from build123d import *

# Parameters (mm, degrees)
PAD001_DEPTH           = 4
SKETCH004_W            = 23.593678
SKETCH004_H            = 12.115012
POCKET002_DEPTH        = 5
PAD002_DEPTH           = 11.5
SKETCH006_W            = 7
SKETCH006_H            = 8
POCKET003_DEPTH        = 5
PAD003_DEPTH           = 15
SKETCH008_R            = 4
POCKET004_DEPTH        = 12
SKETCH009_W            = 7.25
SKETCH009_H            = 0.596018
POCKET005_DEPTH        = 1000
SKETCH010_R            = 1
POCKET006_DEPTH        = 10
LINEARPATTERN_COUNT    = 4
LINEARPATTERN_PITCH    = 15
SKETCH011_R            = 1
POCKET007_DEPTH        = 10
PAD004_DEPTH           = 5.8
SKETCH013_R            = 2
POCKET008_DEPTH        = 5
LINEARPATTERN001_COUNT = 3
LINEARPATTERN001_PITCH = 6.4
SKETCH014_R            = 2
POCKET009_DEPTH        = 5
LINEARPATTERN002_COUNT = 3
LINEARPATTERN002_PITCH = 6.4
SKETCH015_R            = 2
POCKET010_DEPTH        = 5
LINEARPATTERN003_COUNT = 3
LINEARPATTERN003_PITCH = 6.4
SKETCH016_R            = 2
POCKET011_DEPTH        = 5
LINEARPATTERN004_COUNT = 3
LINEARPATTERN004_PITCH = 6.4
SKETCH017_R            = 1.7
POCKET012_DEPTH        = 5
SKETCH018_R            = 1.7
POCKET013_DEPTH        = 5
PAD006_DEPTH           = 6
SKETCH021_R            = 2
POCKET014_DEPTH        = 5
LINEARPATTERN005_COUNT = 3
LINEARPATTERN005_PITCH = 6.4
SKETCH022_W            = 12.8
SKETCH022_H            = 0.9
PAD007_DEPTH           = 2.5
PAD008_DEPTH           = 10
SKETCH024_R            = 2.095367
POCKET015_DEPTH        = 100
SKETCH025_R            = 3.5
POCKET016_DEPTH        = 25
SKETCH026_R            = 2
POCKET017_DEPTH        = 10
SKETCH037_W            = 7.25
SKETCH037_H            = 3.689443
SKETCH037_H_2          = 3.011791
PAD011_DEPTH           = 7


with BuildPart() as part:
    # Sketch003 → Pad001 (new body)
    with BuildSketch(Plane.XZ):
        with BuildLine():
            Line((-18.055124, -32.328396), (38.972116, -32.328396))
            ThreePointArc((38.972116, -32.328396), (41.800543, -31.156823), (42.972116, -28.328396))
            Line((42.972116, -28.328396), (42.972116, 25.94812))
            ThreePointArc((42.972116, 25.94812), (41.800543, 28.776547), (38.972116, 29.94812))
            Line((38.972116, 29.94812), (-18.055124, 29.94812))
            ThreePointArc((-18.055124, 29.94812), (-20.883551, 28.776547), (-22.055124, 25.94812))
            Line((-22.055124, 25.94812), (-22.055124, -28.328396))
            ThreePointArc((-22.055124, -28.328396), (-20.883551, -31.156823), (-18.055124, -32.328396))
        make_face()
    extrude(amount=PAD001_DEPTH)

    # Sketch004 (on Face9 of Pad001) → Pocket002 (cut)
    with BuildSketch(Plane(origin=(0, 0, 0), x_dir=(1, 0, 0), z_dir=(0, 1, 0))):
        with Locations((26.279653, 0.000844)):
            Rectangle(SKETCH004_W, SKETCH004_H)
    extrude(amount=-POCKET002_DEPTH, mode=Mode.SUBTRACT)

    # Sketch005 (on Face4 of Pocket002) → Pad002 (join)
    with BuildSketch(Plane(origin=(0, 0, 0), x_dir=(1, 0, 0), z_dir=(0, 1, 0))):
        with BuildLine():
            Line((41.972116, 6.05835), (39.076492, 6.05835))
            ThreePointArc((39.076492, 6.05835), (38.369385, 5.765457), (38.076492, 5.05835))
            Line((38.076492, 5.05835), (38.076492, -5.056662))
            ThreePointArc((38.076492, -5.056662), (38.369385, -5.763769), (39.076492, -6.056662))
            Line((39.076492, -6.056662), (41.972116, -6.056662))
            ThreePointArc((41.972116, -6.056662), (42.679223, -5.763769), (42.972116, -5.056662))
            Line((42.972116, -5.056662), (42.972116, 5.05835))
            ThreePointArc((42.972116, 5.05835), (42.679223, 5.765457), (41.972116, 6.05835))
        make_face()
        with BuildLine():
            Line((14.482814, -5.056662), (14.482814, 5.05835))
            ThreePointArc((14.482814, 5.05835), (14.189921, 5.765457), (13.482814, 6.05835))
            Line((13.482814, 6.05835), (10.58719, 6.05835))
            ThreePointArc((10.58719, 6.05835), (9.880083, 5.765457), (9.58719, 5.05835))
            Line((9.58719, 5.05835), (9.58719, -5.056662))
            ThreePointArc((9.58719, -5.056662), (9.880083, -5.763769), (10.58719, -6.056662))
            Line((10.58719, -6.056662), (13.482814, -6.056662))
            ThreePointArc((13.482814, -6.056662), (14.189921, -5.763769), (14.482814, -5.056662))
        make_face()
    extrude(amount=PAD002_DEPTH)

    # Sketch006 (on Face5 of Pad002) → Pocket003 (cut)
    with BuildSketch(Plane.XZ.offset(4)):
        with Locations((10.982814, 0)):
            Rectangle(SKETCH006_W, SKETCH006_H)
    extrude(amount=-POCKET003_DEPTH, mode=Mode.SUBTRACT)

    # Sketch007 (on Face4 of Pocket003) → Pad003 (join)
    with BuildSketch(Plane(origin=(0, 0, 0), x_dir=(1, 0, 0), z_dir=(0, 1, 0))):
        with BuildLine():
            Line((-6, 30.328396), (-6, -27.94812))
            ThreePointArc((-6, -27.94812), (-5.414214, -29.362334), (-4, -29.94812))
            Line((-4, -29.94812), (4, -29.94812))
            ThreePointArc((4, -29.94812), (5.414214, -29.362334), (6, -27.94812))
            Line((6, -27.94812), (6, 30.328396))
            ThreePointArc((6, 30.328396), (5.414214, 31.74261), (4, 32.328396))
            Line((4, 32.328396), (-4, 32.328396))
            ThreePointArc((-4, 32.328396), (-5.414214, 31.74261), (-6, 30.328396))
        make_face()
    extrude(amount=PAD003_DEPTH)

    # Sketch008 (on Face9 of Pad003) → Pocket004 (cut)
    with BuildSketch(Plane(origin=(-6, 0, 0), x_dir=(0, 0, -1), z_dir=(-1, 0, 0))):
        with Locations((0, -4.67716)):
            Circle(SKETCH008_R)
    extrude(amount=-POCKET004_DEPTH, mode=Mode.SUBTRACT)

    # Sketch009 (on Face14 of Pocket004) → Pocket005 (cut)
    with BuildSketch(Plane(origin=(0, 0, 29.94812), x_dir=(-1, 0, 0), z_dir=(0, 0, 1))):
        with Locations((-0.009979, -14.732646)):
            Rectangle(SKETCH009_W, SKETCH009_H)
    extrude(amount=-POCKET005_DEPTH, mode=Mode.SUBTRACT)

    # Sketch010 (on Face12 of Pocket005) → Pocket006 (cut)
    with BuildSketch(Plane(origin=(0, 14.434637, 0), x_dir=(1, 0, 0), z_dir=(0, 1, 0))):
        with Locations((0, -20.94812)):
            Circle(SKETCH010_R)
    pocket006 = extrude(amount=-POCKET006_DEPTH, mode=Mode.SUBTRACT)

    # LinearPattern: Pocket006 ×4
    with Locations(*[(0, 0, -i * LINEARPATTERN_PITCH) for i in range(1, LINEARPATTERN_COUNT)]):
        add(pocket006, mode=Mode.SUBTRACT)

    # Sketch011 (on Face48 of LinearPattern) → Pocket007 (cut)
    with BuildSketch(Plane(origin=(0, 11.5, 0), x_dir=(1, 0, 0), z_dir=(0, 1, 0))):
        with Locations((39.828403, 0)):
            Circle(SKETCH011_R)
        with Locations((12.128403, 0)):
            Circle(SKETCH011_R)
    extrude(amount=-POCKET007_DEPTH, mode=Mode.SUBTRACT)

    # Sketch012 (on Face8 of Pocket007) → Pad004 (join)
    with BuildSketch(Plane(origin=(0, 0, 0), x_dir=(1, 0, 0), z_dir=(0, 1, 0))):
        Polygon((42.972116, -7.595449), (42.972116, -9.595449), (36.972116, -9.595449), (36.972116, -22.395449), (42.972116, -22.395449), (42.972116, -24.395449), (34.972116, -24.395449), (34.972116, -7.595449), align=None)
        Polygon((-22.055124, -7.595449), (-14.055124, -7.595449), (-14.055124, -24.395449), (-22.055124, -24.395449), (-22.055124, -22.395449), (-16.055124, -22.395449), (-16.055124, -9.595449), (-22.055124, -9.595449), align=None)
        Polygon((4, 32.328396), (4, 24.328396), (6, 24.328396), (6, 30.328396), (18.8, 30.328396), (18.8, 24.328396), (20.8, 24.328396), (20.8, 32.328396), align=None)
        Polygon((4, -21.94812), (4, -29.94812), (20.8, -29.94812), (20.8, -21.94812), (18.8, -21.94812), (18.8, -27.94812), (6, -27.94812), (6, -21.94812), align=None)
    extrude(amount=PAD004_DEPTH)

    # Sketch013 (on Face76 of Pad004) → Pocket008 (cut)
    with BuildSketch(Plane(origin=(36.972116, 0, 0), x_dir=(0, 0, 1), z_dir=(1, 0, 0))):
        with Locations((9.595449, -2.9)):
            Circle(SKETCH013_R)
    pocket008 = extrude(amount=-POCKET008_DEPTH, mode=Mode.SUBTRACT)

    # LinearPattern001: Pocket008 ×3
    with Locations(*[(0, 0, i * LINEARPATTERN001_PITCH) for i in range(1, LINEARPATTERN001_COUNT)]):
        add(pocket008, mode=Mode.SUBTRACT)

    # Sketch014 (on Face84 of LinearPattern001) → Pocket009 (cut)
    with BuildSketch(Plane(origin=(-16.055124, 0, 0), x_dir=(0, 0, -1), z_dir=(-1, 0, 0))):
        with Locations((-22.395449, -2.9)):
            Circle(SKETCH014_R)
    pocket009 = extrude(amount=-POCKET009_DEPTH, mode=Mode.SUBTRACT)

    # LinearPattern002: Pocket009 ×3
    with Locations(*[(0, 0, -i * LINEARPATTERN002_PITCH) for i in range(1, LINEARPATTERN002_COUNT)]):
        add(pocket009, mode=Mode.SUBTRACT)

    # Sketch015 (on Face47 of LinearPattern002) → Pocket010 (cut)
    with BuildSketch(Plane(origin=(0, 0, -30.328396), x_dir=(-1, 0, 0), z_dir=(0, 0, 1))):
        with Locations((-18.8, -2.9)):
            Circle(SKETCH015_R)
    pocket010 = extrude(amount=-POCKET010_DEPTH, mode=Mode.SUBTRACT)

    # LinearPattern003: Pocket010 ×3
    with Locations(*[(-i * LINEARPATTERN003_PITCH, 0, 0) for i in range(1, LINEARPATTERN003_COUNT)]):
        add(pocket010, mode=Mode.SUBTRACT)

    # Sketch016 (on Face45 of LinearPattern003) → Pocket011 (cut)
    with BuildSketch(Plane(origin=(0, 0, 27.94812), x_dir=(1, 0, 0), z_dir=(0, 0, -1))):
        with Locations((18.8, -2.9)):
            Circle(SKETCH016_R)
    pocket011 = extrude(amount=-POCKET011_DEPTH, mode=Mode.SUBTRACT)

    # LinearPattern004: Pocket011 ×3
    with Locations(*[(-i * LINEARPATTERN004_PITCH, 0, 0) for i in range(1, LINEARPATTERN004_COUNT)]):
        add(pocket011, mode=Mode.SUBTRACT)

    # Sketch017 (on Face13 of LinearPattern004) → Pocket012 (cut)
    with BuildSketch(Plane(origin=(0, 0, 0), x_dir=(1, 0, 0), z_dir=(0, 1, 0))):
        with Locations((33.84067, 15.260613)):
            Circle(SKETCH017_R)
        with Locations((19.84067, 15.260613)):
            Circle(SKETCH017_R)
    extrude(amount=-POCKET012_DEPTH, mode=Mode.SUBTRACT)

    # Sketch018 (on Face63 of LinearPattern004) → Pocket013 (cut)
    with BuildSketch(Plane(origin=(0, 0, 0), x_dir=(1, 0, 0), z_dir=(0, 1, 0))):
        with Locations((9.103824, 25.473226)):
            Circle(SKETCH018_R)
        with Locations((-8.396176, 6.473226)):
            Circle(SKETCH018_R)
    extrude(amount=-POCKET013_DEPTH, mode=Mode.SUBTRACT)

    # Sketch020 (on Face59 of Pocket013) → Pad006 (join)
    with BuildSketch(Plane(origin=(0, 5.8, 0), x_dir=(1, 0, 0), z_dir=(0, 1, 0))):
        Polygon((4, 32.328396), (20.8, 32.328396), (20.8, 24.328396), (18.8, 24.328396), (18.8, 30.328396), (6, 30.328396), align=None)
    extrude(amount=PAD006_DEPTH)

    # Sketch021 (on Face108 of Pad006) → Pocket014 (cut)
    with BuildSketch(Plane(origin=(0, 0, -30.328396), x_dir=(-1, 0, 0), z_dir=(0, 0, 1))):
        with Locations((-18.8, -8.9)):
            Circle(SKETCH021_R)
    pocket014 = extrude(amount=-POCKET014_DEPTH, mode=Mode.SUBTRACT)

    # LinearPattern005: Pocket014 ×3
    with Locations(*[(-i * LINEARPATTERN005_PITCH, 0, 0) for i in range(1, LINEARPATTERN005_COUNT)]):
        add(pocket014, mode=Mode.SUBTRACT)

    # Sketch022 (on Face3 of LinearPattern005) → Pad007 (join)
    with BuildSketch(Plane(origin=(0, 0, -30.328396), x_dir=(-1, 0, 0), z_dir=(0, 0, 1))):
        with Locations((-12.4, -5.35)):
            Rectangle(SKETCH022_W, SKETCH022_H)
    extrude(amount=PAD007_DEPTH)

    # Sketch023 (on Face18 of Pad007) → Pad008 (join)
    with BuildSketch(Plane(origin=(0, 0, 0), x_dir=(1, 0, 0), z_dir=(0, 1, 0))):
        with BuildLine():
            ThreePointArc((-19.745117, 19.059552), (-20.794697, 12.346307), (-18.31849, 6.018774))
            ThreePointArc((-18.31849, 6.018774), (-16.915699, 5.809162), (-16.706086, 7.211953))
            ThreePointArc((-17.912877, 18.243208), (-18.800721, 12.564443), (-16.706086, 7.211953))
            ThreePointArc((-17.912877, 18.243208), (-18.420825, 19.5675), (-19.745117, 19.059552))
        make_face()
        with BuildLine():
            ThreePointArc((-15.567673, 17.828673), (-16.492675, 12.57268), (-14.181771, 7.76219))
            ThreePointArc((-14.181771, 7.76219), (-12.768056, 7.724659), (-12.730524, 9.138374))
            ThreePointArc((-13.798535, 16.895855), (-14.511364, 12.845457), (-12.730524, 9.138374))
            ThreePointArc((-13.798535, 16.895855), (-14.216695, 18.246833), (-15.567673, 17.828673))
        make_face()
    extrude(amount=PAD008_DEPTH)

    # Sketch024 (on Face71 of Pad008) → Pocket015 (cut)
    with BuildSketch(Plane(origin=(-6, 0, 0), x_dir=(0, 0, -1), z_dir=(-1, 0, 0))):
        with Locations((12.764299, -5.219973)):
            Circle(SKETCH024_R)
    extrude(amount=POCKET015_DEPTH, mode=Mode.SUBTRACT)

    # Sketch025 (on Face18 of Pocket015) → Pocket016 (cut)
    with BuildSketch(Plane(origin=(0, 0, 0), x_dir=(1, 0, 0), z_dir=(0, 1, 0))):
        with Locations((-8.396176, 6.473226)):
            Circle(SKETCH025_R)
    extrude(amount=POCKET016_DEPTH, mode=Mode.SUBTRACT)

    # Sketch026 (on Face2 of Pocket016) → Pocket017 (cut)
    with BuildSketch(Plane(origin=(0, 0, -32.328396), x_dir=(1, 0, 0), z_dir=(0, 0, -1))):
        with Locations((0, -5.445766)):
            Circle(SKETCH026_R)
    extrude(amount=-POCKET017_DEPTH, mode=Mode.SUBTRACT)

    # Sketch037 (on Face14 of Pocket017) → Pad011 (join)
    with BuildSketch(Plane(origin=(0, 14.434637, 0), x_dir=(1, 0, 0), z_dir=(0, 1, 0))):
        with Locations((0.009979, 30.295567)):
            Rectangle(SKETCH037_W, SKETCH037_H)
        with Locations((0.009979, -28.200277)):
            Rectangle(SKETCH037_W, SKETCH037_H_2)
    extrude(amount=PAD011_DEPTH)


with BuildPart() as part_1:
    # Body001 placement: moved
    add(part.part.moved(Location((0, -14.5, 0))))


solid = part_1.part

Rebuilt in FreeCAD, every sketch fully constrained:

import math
import FreeCAD as App
import Part
import Sketcher

V = App.Vector
Q = App.Units.Quantity

doc = App.newDocument("Part")
body = doc.addObject("PartDesign::Body", "Body")

sketch1 = body.newObject("Sketcher::SketchObject", "Sketch")
sketch1.AttachmentSupport = (doc.getObject("XZ_Plane"), [""])
sketch1.MapMode = "FlatFace"
sketch1.addGeometry([
    Part.LineSegment(V(-18.1, -32.3, 0), V(39, -32.3, 0)),
    Part.ArcOfCircle(Part.Circle(V(39, -28.3, 0), V(0, 0, 1), 4), math.radians(-90), math.radians(0)),
    Part.LineSegment(V(43, -28.3, 0), V(43, 25.9, 0)),
    Part.ArcOfCircle(Part.Circle(V(39, 25.9, 0), V(0, 0, 1), 4), math.radians(0), math.radians(90)),
    Part.LineSegment(V(39, 29.9, 0), V(-18.1, 29.9, 0)),
    Part.ArcOfCircle(Part.Circle(V(-18.1, 25.9, 0), V(0, 0, 1), 4), math.radians(90), math.radians(180)),
    Part.LineSegment(V(-22.1, 25.9, 0), V(-22.1, -28.3, 0)),
    Part.ArcOfCircle(Part.Circle(V(-18.1, -28.3, 0), V(0, 0, 1), 4), math.radians(-180), math.radians(-90)),
], False)
sketch1.addConstraint([
    Sketcher.Constraint("Tangent", 0, 2, 1, 1),
    Sketcher.Constraint("Tangent", 1, 2, 2, 1),
    Sketcher.Constraint("Tangent", 2, 2, 3, 1),
    Sketcher.Constraint("Tangent", 3, 2, 4, 1),
    Sketcher.Constraint("Tangent", 4, 2, 5, 1),
    Sketcher.Constraint("Tangent", 5, 2, 6, 1),
    Sketcher.Constraint("Tangent", 6, 2, 7, 1),
    Sketcher.Constraint("Tangent", 7, 2, 0, 1),
    Sketcher.Constraint("Horizontal", 0),
    Sketcher.Constraint("Vertical", 2),
    Sketcher.Constraint("Horizontal", 4),
    Sketcher.Constraint("Vertical", 6),
    Sketcher.Constraint("Equal", 1, 3),
    Sketcher.Constraint("Equal", 3, 5),
    Sketcher.Constraint("Equal", 5, 7),
    Sketcher.Constraint("Radius", 1, Q("4 mm")),
    Sketcher.Constraint("DistanceX", 0, 1, 0, 2, Q("57.02724 mm")),
    Sketcher.Constraint("DistanceY", 2, 1, 2, 2, Q("54.276516 mm")),
    Sketcher.Constraint("DistanceY", -1, 1, 3, 3, Q("25.94812 mm")),
    Sketcher.Constraint("DistanceX", -1, 1, 1, 3, Q("38.972116 mm")),
])
pad1 = body.newObject("PartDesign::Pad", "Pad")
pad1.Profile = sketch1
pad1.Length = 4

sketch2 = body.newObject("Sketcher::SketchObject", "Sketch001")
sketch2.AttachmentSupport = (doc.getObject("XZ_Plane"), [""])
sketch2.MapMode = "FlatFace"
sketch2.addGeometry([
    Part.LineSegment(V(14, -6, 0), V(14, 6, 0)),
    Part.LineSegment(V(14, 6, 0), V(38, 6, 0)),
    Part.LineSegment(V(38, 6, 0), V(38, -6, 0)),
    Part.LineSegment(V(38, -6, 0), V(14, -6, 0)),
], False)
sketch2.addConstraint([
    Sketcher.Constraint("Coincident", 0, 2, 1, 1),
    Sketcher.Constraint("Coincident", 1, 2, 2, 1),
    Sketcher.Constraint("Coincident", 2, 2, 3, 1),
    Sketcher.Constraint("Coincident", 3, 2, 0, 1),
    Sketcher.Constraint("Vertical", 0),
    Sketcher.Constraint("Horizontal", 1),
    Sketcher.Constraint("Vertical", 2),
    Sketcher.Constraint("Horizontal", 3),
    Sketcher.Constraint("DistanceX", 1, 1, 1, 2, Q("23.593678 mm")),
    Sketcher.Constraint("DistanceY", 0, 1, 0, 2, Q("12.115012 mm")),
    Sketcher.Constraint("DistanceY", 2, 2, -1, 1, Q("6.05835 mm")),
    Sketcher.Constraint("DistanceX", -1, 1, 0, 2, Q("14.482814 mm")),
])
pocket1 = body.newObject("PartDesign::Pocket", "Pocket")
pocket1.Profile = sketch2
pocket1.Length = 5
pocket1.Reversed = True

sketch3 = body.newObject("Sketcher::SketchObject", "Sketch002")
sketch3.AttachmentSupport = (doc.getObject("XZ_Plane"), [""])
sketch3.MapMode = "FlatFace"
sketch3.addGeometry([
    Part.LineSegment(V(42, -6.1, 0), V(39.1, -6.1, 0)),
    Part.ArcOfCircle(Part.Circle(V(39.1, -5.1, 0), V(0, 0, 1), 1), math.radians(180), math.radians(270)),
    Part.LineSegment(V(38.1, -5.1, 0), V(38.1, 5.1, 0)),
    Part.ArcOfCircle(Part.Circle(V(39.1, 5.1, 0), V(0, 0, 1), 1), math.radians(90), math.radians(180)),
    Part.LineSegment(V(39.1, 6.1, 0), V(42, 6.1, 0)),
    Part.ArcOfCircle(Part.Circle(V(42, 5.1, 0), V(0, 0, 1), 1), math.radians(0), math.radians(90)),
    Part.LineSegment(V(43, 5.1, 0), V(43, -5.1, 0)),
    Part.ArcOfCircle(Part.Circle(V(42, -5.1, 0), V(0, 0, 1), 1), math.radians(-90), math.radians(0)),
    Part.LineSegment(V(14.5, 5.1, 0), V(14.5, -5.1, 0)),
    Part.ArcOfCircle(Part.Circle(V(13.5, -5.1, 0), V(0, 0, 1), 1), math.radians(-90), math.radians(0)),
    Part.LineSegment(V(13.5, -6.1, 0), V(10.6, -6.1, 0)),
    Part.ArcOfCircle(Part.Circle(V(10.6, -5.1, 0), V(0, 0, 1), 1), math.radians(180), math.radians(270)),
    Part.LineSegment(V(9.6, -5.1, 0), V(9.6, 5.1, 0)),
    Part.ArcOfCircle(Part.Circle(V(10.6, 5.1, 0), V(0, 0, 1), 1), math.radians(90), math.radians(180)),
    Part.LineSegment(V(10.6, 6.1, 0), V(13.5, 6.1, 0)),
    Part.ArcOfCircle(Part.Circle(V(13.5, 5.1, 0), V(0, 0, 1), 1), math.radians(0), math.radians(90)),
], False)
sketch3.addConstraint([
    Sketcher.Constraint("Tangent", 0, 2, 1, 2),
    Sketcher.Constraint("Tangent", 1, 1, 2, 1),
    Sketcher.Constraint("Tangent", 2, 2, 3, 2),
    Sketcher.Constraint("Tangent", 3, 1, 4, 1),
    Sketcher.Constraint("Tangent", 4, 2, 5, 2),
    Sketcher.Constraint("Tangent", 5, 1, 6, 1),
    Sketcher.Constraint("Tangent", 6, 2, 7, 2),
    Sketcher.Constraint("Tangent", 7, 1, 0, 1),
    Sketcher.Constraint("Tangent", 8, 2, 9, 2),
    Sketcher.Constraint("Tangent", 9, 1, 10, 1),
    Sketcher.Constraint("Tangent", 10, 2, 11, 2),
    Sketcher.Constraint("Tangent", 11, 1, 12, 1),
    Sketcher.Constraint("Tangent", 12, 2, 13, 2),
    Sketcher.Constraint("Tangent", 13, 1, 14, 1),
    Sketcher.Constraint("Tangent", 14, 2, 15, 2),
    Sketcher.Constraint("Tangent", 15, 1, 8, 1),
    Sketcher.Constraint("Horizontal", 0),
    Sketcher.Constraint("Vertical", 2),
    Sketcher.Constraint("Horizontal", 4),
    Sketcher.Constraint("Vertical", 6),
    Sketcher.Constraint("Vertical", 8),
    Sketcher.Constraint("Horizontal", 10),
    Sketcher.Constraint("Vertical", 12),
    Sketcher.Constraint("Horizontal", 14),
    Sketcher.Constraint("Equal", 1, 3),
    Sketcher.Constraint("Equal", 3, 5),
    Sketcher.Constraint("Equal", 5, 7),
    Sketcher.Constraint("Equal", 7, 9),
    Sketcher.Constraint("Equal", 9, 11),
    Sketcher.Constraint("Equal", 11, 13),
    Sketcher.Constraint("Equal", 13, 15),
    Sketcher.Constraint("Horizontal", 7, 3, 9, 3),
    Sketcher.Constraint("Horizontal", 5, 3, 13, 3),
    Sketcher.Constraint("Equal", 4, 10),
    Sketcher.Constraint("Radius", 1, Q("0.999999 mm")),
    Sketcher.Constraint("DistanceX", 0, 2, 0, 1, Q("2.895624 mm")),
    Sketcher.Constraint("DistanceY", 2, 1, 2, 2, Q("10.115012 mm")),
    Sketcher.Constraint("DistanceX", -1, 1, 1, 3, Q("39.076491 mm")),
    Sketcher.Constraint("DistanceY", 1, 3, -1, 1, Q("5.058351 mm")),
    Sketcher.Constraint("DistanceX", -1, 1, 11, 3, Q("10.587189 mm")),
])
pad2 = body.newObject("PartDesign::Pad", "Pad001")
pad2.Profile = sketch3
pad2.Length = 11.5
pad2.Reversed = True

sketch4 = body.newObject("Sketcher::SketchObject", "Sketch003")
sketch4.AttachmentSupport = (doc.getObject("XZ_Plane"), [""])
sketch4.MapMode = "FlatFace"
sketch4.AttachmentOffset = App.Placement(V(0, 0, 4), App.Rotation())
sketch4.addGeometry([
    Part.LineSegment(V(7, 4, 0), V(7, -4, 0)),
    Part.LineSegment(V(7, -4, 0), V(14, -4, 0)),
    Part.LineSegment(V(14, -4, 0), V(14, 4, 0)),
    Part.LineSegment(V(14, 4, 0), V(7, 4, 0)),
], False)
sketch4.addConstraint([
    Sketcher.Constraint("Coincident", 0, 2, 1, 1),
    Sketcher.Constraint("Coincident", 1, 2, 2, 1),
    Sketcher.Constraint("Coincident", 2, 2, 3, 1),
    Sketcher.Constraint("Coincident", 3, 2, 0, 1),
    Sketcher.Constraint("Vertical", 0),
    Sketcher.Constraint("Horizontal", 1),
    Sketcher.Constraint("Vertical", 2),
    Sketcher.Constraint("Horizontal", 3),
    Sketcher.Constraint("DistanceX", 1, 1, 1, 2, Q("7 mm")),
    Sketcher.Constraint("DistanceY", 0, 2, 0, 1, Q("8 mm")),
    Sketcher.Constraint("DistanceY", 0, 2, -1, 1, Q("4 mm")),
    Sketcher.Constraint("DistanceX", -1, 1, 0, 2, Q("7.482814 mm")),
])
pocket2 = body.newObject("PartDesign::Pocket", "Pocket001")
pocket2.Profile = sketch4
pocket2.Length = 5

sketch5 = body.newObject("Sketcher::SketchObject", "Sketch004")
sketch5.AttachmentSupport = (doc.getObject("XZ_Plane"), [""])
sketch5.MapMode = "FlatFace"
sketch5.addGeometry([
    Part.LineSegment(V(-6, -30.3, 0), V(-6, 27.9, 0)),
    Part.ArcOfCircle(Part.Circle(V(-4, 27.9, 0), V(0, 0, 1), 2), math.radians(90), math.radians(180)),
    Part.LineSegment(V(-4, 29.9, 0), V(4, 29.9, 0)),
    Part.ArcOfCircle(Part.Circle(V(4, 27.9, 0), V(0, 0, 1), 2), math.radians(0), math.radians(90)),
    Part.LineSegment(V(6, 27.9, 0), V(6, -30.3, 0)),
    Part.ArcOfCircle(Part.Circle(V(4, -30.3, 0), V(0, 0, 1), 2), math.radians(-90), math.radians(0)),
    Part.LineSegment(V(4, -32.3, 0), V(-4, -32.3, 0)),
    Part.ArcOfCircle(Part.Circle(V(-4, -30.3, 0), V(0, 0, 1), 2), math.radians(180), math.radians(270)),
], False)
sketch5.addConstraint([
    Sketcher.Constraint("Tangent", 0, 2, 1, 2),
    Sketcher.Constraint("Tangent", 1, 1, 2, 1),
    Sketcher.Constraint("Tangent", 2, 2, 3, 2),
    Sketcher.Constraint("Tangent", 3, 1, 4, 1),
    Sketcher.Constraint("Tangent", 4, 2, 5, 2),
    Sketcher.Constraint("Tangent", 5, 1, 6, 1),
    Sketcher.Constraint("Tangent", 6, 2, 7, 2),
    Sketcher.Constraint("Tangent", 7, 1, 0, 1),
    Sketcher.Constraint("Vertical", 0),
    Sketcher.Constraint("Horizontal", 2),
    Sketcher.Constraint("Vertical", 4),
    Sketcher.Constraint("Horizontal", 6),
    Sketcher.Constraint("Equal", 1, 3),
    Sketcher.Constraint("Equal", 3, 5),
    Sketcher.Constraint("Equal", 5, 7),
    Sketcher.Constraint("Radius", 1, Q("1.999999 mm")),
    Sketcher.Constraint("DistanceX", 2, 1, 2, 2, Q("8 mm")),
    Sketcher.Constraint("DistanceX", 1, 3, -1, 1, Q("4.000001 mm")),
    Sketcher.Constraint("DistanceY", 0, 1, 0, 2, Q("58.276516 mm")),
    Sketcher.Constraint("DistanceY", -1, 1, 1, 3, Q("27.948121 mm")),
])
pad3 = body.newObject("PartDesign::Pad", "Pad002")
pad3.Profile = sketch5
pad3.Length = 15
pad3.Reversed = True

sketch6 = body.newObject("Sketcher::SketchObject", "Sketch005")
sketch6.AttachmentSupport = (doc.getObject("YZ_Plane"), [""])
sketch6.MapMode = "FlatFace"
sketch6.AttachmentOffset = App.Placement(V(0, 0, -6), App.Rotation())
sketch6.addGeometry(Part.Circle(V(4.7, 0, 0), V(0, 0, 1), 4), False)
sketch6.addConstraint([
    Sketcher.Constraint("PointOnObject", 0, 3, -1),
    Sketcher.Constraint("Diameter", 0, Q("8 mm")),
    Sketcher.Constraint("DistanceX", -1, 1, 0, 3, Q("4.67716 mm")),
])
pocket3 = body.newObject("PartDesign::Pocket", "Pocket002")
pocket3.Profile = sketch6
pocket3.Length = 12
pocket3.Reversed = True

sketch7 = body.newObject("Sketcher::SketchObject", "Sketch006")
sketch7.AttachmentSupport = (doc.getObject("XY_Plane"), [""])
sketch7.MapMode = "FlatFace"
sketch7.AttachmentOffset = App.Placement(V(0, 0, 29.94812), App.Rotation())
sketch7.addGeometry([
    Part.LineSegment(V(3.6, 14.4, 0), V(3.6, 15, 0)),
    Part.LineSegment(V(3.6, 15, 0), V(-3.6, 15, 0)),
    Part.LineSegment(V(-3.6, 15, 0), V(-3.6, 14.4, 0)),
    Part.LineSegment(V(-3.6, 14.4, 0), V(3.6, 14.4, 0)),
], False)
sketch7.addConstraint([
    Sketcher.Constraint("Coincident", 0, 2, 1, 1),
    Sketcher.Constraint("Coincident", 1, 2, 2, 1),
    Sketcher.Constraint("Coincident", 2, 2, 3, 1),
    Sketcher.Constraint("Coincident", 3, 2, 0, 1),
    Sketcher.Constraint("Vertical", 0),
    Sketcher.Constraint("Horizontal", 1),
    Sketcher.Constraint("Vertical", 2),
    Sketcher.Constraint("Horizontal", 3),
    Sketcher.Constraint("DistanceX", 1, 2, 1, 1, Q("7.25 mm")),
    Sketcher.Constraint("DistanceY", 0, 1, 0, 2, Q("0.596018 mm")),
    Sketcher.Constraint("DistanceX", -1, 1, 0, 2, Q("3.634979 mm")),
    Sketcher.Constraint("DistanceY", -1, 1, 0, 2, Q("15.030655 mm")),
])
pocket4 = body.newObject("PartDesign::Pocket", "Pocket003")
pocket4.Profile = sketch7
pocket4.Length = 1000

sketch8 = body.newObject("Sketcher::SketchObject", "Sketch007")
sketch8.AttachmentSupport = (doc.getObject("XZ_Plane"), [""])
sketch8.MapMode = "FlatFace"
sketch8.AttachmentOffset = App.Placement(V(0, 0, -14.434637), App.Rotation())
sketch8.addGeometry(Part.Circle(V(0, 20.9, 0), V(0, 0, 1), 1), False)
sketch8.addConstraint([
    Sketcher.Constraint("PointOnObject", 0, 3, -2),
    Sketcher.Constraint("Diameter", 0, Q("2 mm")),
    Sketcher.Constraint("DistanceY", -1, 1, 0, 3, Q("20.94812 mm")),
])
pocket5 = body.newObject("PartDesign::Pocket", "Pocket004")
pocket5.Profile = sketch8
pocket5.Length = 10
pocket5.Reversed = True
doc.recompute()

linearpattern = body.newObject("PartDesign::LinearPattern", "LinearPattern")
linearpattern.Originals = [pocket5]
linearpattern.Direction = (doc.getObject("Z_Axis"), [""])
linearpattern.Mode = "offset"
linearpattern.Offset = 15
linearpattern.Occurrences = 4
linearpattern.Reversed = True
body.Tip = linearpattern

sketch9 = body.newObject("Sketcher::SketchObject", "Sketch008")
sketch9.AttachmentSupport = (doc.getObject("XZ_Plane"), [""])
sketch9.MapMode = "FlatFace"
sketch9.AttachmentOffset = App.Placement(V(0, 0, -11.5), App.Rotation())
sketch9.addGeometry([
    Part.Circle(V(39.8, 0, 0), V(0, 0, 1), 1),
    Part.Circle(V(12.1, 0, 0), V(0, 0, 1), 1),
], False)
sketch9.addConstraint([
    Sketcher.Constraint("Equal", 0, 1),
    Sketcher.Constraint("PointOnObject", 0, 3, -1),
    Sketcher.Constraint("PointOnObject", 1, 3, -1),
    Sketcher.Constraint("Diameter", 0, Q("2 mm")),
    Sketcher.Constraint("DistanceX", 1, 3, 0, 3, Q("27.7 mm")),
    Sketcher.Constraint("DistanceX", -1, 1, 0, 3, Q("39.828403 mm")),
])
pocket6 = body.newObject("PartDesign::Pocket", "Pocket005")
pocket6.Profile = sketch9
pocket6.Length = 10
pocket6.Reversed = True

sketch10 = body.newObject("Sketcher::SketchObject", "Sketch009")
sketch10.AttachmentSupport = (doc.getObject("XZ_Plane"), [""])
sketch10.MapMode = "FlatFace"
sketch10.addGeometry([
    Part.LineSegment(V(43, 9.6, 0), V(43, 7.6, 0)),
    Part.LineSegment(V(43, 7.6, 0), V(35, 7.6, 0)),
    Part.LineSegment(V(35, 7.6, 0), V(35, 24.4, 0)),
    Part.LineSegment(V(35, 24.4, 0), V(43, 24.4, 0)),
    Part.LineSegment(V(43, 24.4, 0), V(43, 22.4, 0)),
    Part.LineSegment(V(43, 22.4, 0), V(37, 22.4, 0)),
    Part.LineSegment(V(37, 22.4, 0), V(37, 9.6, 0)),
    Part.LineSegment(V(37, 9.6, 0), V(43, 9.6, 0)),
    Part.LineSegment(V(-14.1, 7.6, 0), V(-22.1, 7.6, 0)),
    Part.LineSegment(V(-22.1, 7.6, 0), V(-22.1, 9.6, 0)),
    Part.LineSegment(V(-22.1, 9.6, 0), V(-16.1, 9.6, 0)),
    Part.LineSegment(V(-16.1, 9.6, 0), V(-16.1, 22.4, 0)),
    Part.LineSegment(V(-16.1, 22.4, 0), V(-22.1, 22.4, 0)),
    Part.LineSegment(V(-22.1, 22.4, 0), V(-22.1, 24.4, 0)),
    Part.LineSegment(V(-22.1, 24.4, 0), V(-14.1, 24.4, 0)),
    Part.LineSegment(V(-14.1, 24.4, 0), V(-14.1, 7.6, 0)),
    Part.LineSegment(V(4, -32.3, 0), V(4, -24.3, 0)),
    Part.LineSegment(V(4, -24.3, 0), V(6, -24.3, 0)),
    Part.LineSegment(V(6, -24.3, 0), V(6, -30.3, 0)),
    Part.LineSegment(V(6, -30.3, 0), V(18.8, -30.3, 0)),
    Part.LineSegment(V(18.8, -30.3, 0), V(18.8, -24.3, 0)),
    Part.LineSegment(V(18.8, -24.3, 0), V(20.8, -24.3, 0)),
    Part.LineSegment(V(20.8, -24.3, 0), V(20.8, -32.3, 0)),
    Part.LineSegment(V(20.8, -32.3, 0), V(4, -32.3, 0)),
    Part.LineSegment(V(4, 21.9, 0), V(4, 29.9, 0)),
    Part.LineSegment(V(4, 29.9, 0), V(20.8, 29.9, 0)),
    Part.LineSegment(V(20.8, 29.9, 0), V(20.8, 21.9, 0)),
    Part.LineSegment(V(20.8, 21.9, 0), V(18.8, 21.9, 0)),
    Part.LineSegment(V(18.8, 21.9, 0), V(18.8, 27.9, 0)),
    Part.LineSegment(V(18.8, 27.9, 0), V(6, 27.9, 0)),
    Part.LineSegment(V(6, 27.9, 0), V(6, 21.9, 0)),
    Part.LineSegment(V(6, 21.9, 0), V(4, 21.9, 0)),
], False)
sketch10.addConstraint([
    Sketcher.Constraint("Coincident", 0, 2, 1, 1),
    Sketcher.Constraint("Coincident", 1, 2, 2, 1),
    Sketcher.Constraint("Coincident", 2, 2, 3, 1),
    Sketcher.Constraint("Coincident", 3, 2, 4, 1),
    Sketcher.Constraint("Coincident", 4, 2, 5, 1),
    Sketcher.Constraint("Coincident", 5, 2, 6, 1),
    Sketcher.Constraint("Coincident", 6, 2, 7, 1),
    Sketcher.Constraint("Coincident", 7, 2, 0, 1),
    Sketcher.Constraint("Coincident", 8, 2, 9, 1),
    Sketcher.Constraint("Coincident", 9, 2, 10, 1),
    Sketcher.Constraint("Coincident", 10, 2, 11, 1),
    Sketcher.Constraint("Coincident", 11, 2, 12, 1),
    Sketcher.Constraint("Coincident", 12, 2, 13, 1),
    Sketcher.Constraint("Coincident", 13, 2, 14, 1),
    Sketcher.Constraint("Coincident", 14, 2, 15, 1),
    Sketcher.Constraint("Coincident", 15, 2, 8, 1),
    Sketcher.Constraint("Coincident", 16, 2, 17, 1),
    Sketcher.Constraint("Coincident", 17, 2, 18, 1),
    Sketcher.Constraint("Coincident", 18, 2, 19, 1),
    Sketcher.Constraint("Coincident", 19, 2, 20, 1),
    Sketcher.Constraint("Coincident", 20, 2, 21, 1),
    Sketcher.Constraint("Coincident", 21, 2, 22, 1),
    Sketcher.Constraint("Coincident", 22, 2, 23, 1),
    Sketcher.Constraint("Coincident", 23, 2, 16, 1),
    Sketcher.Constraint("Coincident", 24, 2, 25, 1),
    Sketcher.Constraint("Coincident", 25, 2, 26, 1),
    Sketcher.Constraint("Coincident", 26, 2, 27, 1),
    Sketcher.Constraint("Coincident", 27, 2, 28, 1),
    Sketcher.Constraint("Coincident", 28, 2, 29, 1),
    Sketcher.Constraint("Coincident", 29, 2, 30, 1),
    Sketcher.Constraint("Coincident", 30, 2, 31, 1),
    Sketcher.Constraint("Coincident", 31, 2, 24, 1),
    Sketcher.Constraint("Vertical", 0),
    Sketcher.Constraint("Horizontal", 1),
    Sketcher.Constraint("Vertical", 2),
    Sketcher.Constraint("Horizontal", 3),
    Sketcher.Constraint("Vertical", 4),
    Sketcher.Constraint("Horizontal", 5),
    Sketcher.Constraint("Vertical", 6),
    Sketcher.Constraint("Horizontal", 7),
    Sketcher.Constraint("Horizontal", 8),
    Sketcher.Constraint("Vertical", 9),
    Sketcher.Constraint("Horizontal", 10),
    Sketcher.Constraint("Vertical", 11),
    Sketcher.Constraint("Horizontal", 12),
    Sketcher.Constraint("Vertical", 13),
    Sketcher.Constraint("Horizontal", 14),
    Sketcher.Constraint("Vertical", 15),
    Sketcher.Constraint("Vertical", 16),
    Sketcher.Constraint("Horizontal", 17),
    Sketcher.Constraint("Vertical", 18),
    Sketcher.Constraint("Horizontal", 19),
    Sketcher.Constraint("Vertical", 20),
    Sketcher.Constraint("Horizontal", 21),
    Sketcher.Constraint("Vertical", 22),
    Sketcher.Constraint("Horizontal", 23),
    Sketcher.Constraint("Vertical", 24),
    Sketcher.Constraint("Horizontal", 25),
    Sketcher.Constraint("Vertical", 26),
    Sketcher.Constraint("Horizontal", 27),
    Sketcher.Constraint("Vertical", 28),
    Sketcher.Constraint("Horizontal", 29),
    Sketcher.Constraint("Vertical", 30),
    Sketcher.Constraint("Horizontal", 31),
    Sketcher.Constraint("Horizontal", 1, 2, 8, 2),
    Sketcher.Constraint("Horizontal", 7, 2, 9, 2),
    Sketcher.Constraint("Horizontal", 5, 2, 11, 2),
    Sketcher.Constraint("Horizontal", 3, 2, 13, 2),
    Sketcher.Constraint("Horizontal", 17, 2, 20, 2),
    Sketcher.Constraint("Horizontal", 27, 2, 30, 2),
    Sketcher.Constraint("Vertical", 0, 2, 3, 2),
    Sketcher.Constraint("Vertical", 9, 2, 12, 2),
    Sketcher.Constraint("Vertical", 23, 2, 24, 2),
    Sketcher.Constraint("Vertical", 22, 2, 25, 2),
    Sketcher.Constraint("Vertical", 20, 2, 27, 2),
    Sketcher.Constraint("Vertical", 18, 2, 29, 2),
    Sketcher.Constraint("Equal", 3, 8),
    Sketcher.Constraint("Equal", 7, 10),
    Sketcher.Constraint("Equal", 17, 21),
    Sketcher.Constraint("Equal", 31, 0),
    Sketcher.Constraint("Equal", 25, 2),
    Sketcher.Constraint("Equal", 0, 4),
    Sketcher.Constraint("Equal", 14, 16),
    Sketcher.Constraint("Equal", 12, 18),
    Sketcher.Constraint("Equal", 22, 24),
    Sketcher.Constraint("Equal", 20, 28),
    Sketcher.Constraint("DistanceX", 1, 2, 1, 1, Q("8 mm")),
    Sketcher.Constraint("DistanceX", 5, 2, 5, 1, Q("6 mm")),
    Sketcher.Constraint("DistanceX", 17, 1, 17, 2, Q("2 mm")),
    Sketcher.Constraint("DistanceX", 19, 1, 19, 2, Q("12.8 mm")),
    Sketcher.Constraint("DistanceX", -1, 1, 16, 2, Q("4 mm")),
    Sketcher.Constraint("DistanceY", -1, 1, 0, 2, Q("7.595449 mm")),
    Sketcher.Constraint("DistanceY", -1, 1, 24, 2, Q("29.94812 mm")),
    Sketcher.Constraint("DistanceX", 8, 2, 1, 2, Q("57.02724 mm")),
    Sketcher.Constraint("DistanceX", -1, 1, 0, 2, Q("42.972116 mm")),
    Sketcher.Constraint("DistanceY", 16, 2, -1, 1, Q("24.328396 mm")),
])
pad4 = body.newObject("PartDesign::Pad", "Pad003")
pad4.Profile = sketch10
pad4.Length = 5.8
pad4.Reversed = True

sketch11 = body.newObject("Sketcher::SketchObject", "Sketch010")
sketch11.AttachmentSupport = (doc.getObject("YZ_Plane"), [""])
sketch11.MapMode = "FlatFace"
sketch11.AttachmentOffset = App.Placement(V(0, 0, 36.972116), App.Rotation())
sketch11.addGeometry(Part.Circle(V(2.9, 9.6, 0), V(0, 0, 1), 2), False)
sketch11.addConstraint([
    Sketcher.Constraint("Diameter", 0, Q("4 mm")),
    Sketcher.Constraint("DistanceX", -1, 1, 0, 3, Q("2.9 mm")),
    Sketcher.Constraint("DistanceY", -1, 1, 0, 3, Q("9.595449 mm")),
])
pocket7 = body.newObject("PartDesign::Pocket", "Pocket006")
pocket7.Profile = sketch11
pocket7.Length = 5
doc.recompute()

linearpattern2 = body.newObject("PartDesign::LinearPattern", "LinearPattern001")
linearpattern2.Originals = [pocket7]
linearpattern2.Direction = (doc.getObject("Z_Axis"), [""])
linearpattern2.Mode = "offset"
linearpattern2.Offset = 6.4
linearpattern2.Occurrences = 3
body.Tip = linearpattern2

sketch12 = body.newObject("Sketcher::SketchObject", "Sketch011")
sketch12.AttachmentSupport = (doc.getObject("YZ_Plane"), [""])
sketch12.MapMode = "FlatFace"
sketch12.AttachmentOffset = App.Placement(V(0, 0, -16.055124), App.Rotation())
sketch12.addGeometry(Part.Circle(V(2.9, 22.4, 0), V(0, 0, 1), 2), False)
sketch12.addConstraint([
    Sketcher.Constraint("Diameter", 0, Q("4 mm")),
    Sketcher.Constraint("DistanceX", -1, 1, 0, 3, Q("2.9 mm")),
    Sketcher.Constraint("DistanceY", -1, 1, 0, 3, Q("22.395449 mm")),
])
pocket8 = body.newObject("PartDesign::Pocket", "Pocket007")
pocket8.Profile = sketch12
pocket8.Length = 5
pocket8.Reversed = True
doc.recompute()

linearpattern3 = body.newObject("PartDesign::LinearPattern", "LinearPattern002")
linearpattern3.Originals = [pocket8]
linearpattern3.Direction = (doc.getObject("Z_Axis"), [""])
linearpattern3.Mode = "offset"
linearpattern3.Offset = 6.4
linearpattern3.Occurrences = 3
linearpattern3.Reversed = True
body.Tip = linearpattern3

sketch13 = body.newObject("Sketcher::SketchObject", "Sketch012")
sketch13.AttachmentSupport = (doc.getObject("XY_Plane"), [""])
sketch13.MapMode = "FlatFace"
sketch13.AttachmentOffset = App.Placement(V(0, 0, -30.328396), App.Rotation())
sketch13.addGeometry(Part.Circle(V(18.8, 2.9, 0), V(0, 0, 1), 2), False)
sketch13.addConstraint([
    Sketcher.Constraint("Diameter", 0, Q("4 mm")),
    Sketcher.Constraint("DistanceX", -1, 1, 0, 3, Q("18.8 mm")),
    Sketcher.Constraint("DistanceY", -1, 1, 0, 3, Q("2.9 mm")),
])
pocket9 = body.newObject("PartDesign::Pocket", "Pocket008")
pocket9.Profile = sketch13
pocket9.Length = 5
doc.recompute()

linearpattern4 = body.newObject("PartDesign::LinearPattern", "LinearPattern003")
linearpattern4.Originals = [pocket9]
linearpattern4.Direction = (doc.getObject("X_Axis"), [""])
linearpattern4.Mode = "offset"
linearpattern4.Offset = 6.4
linearpattern4.Occurrences = 3
linearpattern4.Reversed = True
body.Tip = linearpattern4

sketch14 = body.newObject("Sketcher::SketchObject", "Sketch013")
sketch14.AttachmentSupport = (doc.getObject("XY_Plane"), [""])
sketch14.MapMode = "FlatFace"
sketch14.AttachmentOffset = App.Placement(V(0, 0, 27.94812), App.Rotation())
sketch14.addGeometry(Part.Circle(V(18.8, 2.9, 0), V(0, 0, 1), 2), False)
sketch14.addConstraint([
    Sketcher.Constraint("Diameter", 0, Q("4 mm")),
    Sketcher.Constraint("DistanceX", -1, 1, 0, 3, Q("18.8 mm")),
    Sketcher.Constraint("DistanceY", -1, 1, 0, 3, Q("2.9 mm")),
])
pocket10 = body.newObject("PartDesign::Pocket", "Pocket009")
pocket10.Profile = sketch14
pocket10.Length = 5
pocket10.Reversed = True
doc.recompute()

linearpattern5 = body.newObject("PartDesign::LinearPattern", "LinearPattern004")
linearpattern5.Originals = [pocket10]
linearpattern5.Direction = (doc.getObject("X_Axis"), [""])
linearpattern5.Mode = "offset"
linearpattern5.Offset = 6.4
linearpattern5.Occurrences = 3
linearpattern5.Reversed = True
body.Tip = linearpattern5

sketch15 = body.newObject("Sketcher::SketchObject", "Sketch014")
sketch15.AttachmentSupport = (doc.getObject("XZ_Plane"), [""])
sketch15.MapMode = "FlatFace"
sketch15.addGeometry([
    Part.Circle(V(33.8, -15.3, 0), V(0, 0, 1), 1.7),
    Part.Circle(V(19.8, -15.3, 0), V(0, 0, 1), 1.7),
], False)
sketch15.addConstraint([
    Sketcher.Constraint("Equal", 0, 1),
    Sketcher.Constraint("Horizontal", 0, 3, 1, 3),
    Sketcher.Constraint("Diameter", 0, Q("3.4 mm")),
    Sketcher.Constraint("DistanceX", 1, 3, 0, 3, Q("14 mm")),
    Sketcher.Constraint("DistanceX", -1, 1, 0, 3, Q("33.84067 mm")),
    Sketcher.Constraint("DistanceY", 0, 3, -1, 1, Q("15.260613 mm")),
])
pocket11 = body.newObject("PartDesign::Pocket", "Pocket010")
pocket11.Profile = sketch15
pocket11.Length = 5
pocket11.Reversed = True

sketch16 = body.newObject("Sketcher::SketchObject", "Sketch015")
sketch16.AttachmentSupport = (doc.getObject("XZ_Plane"), [""])
sketch16.MapMode = "FlatFace"
sketch16.addGeometry([
    Part.Circle(V(9.1, -25.5, 0), V(0, 0, 1), 1.7),
    Part.Circle(V(-8.4, -6.5, 0), V(0, 0, 1), 1.7),
], False)
sketch16.addConstraint([
    Sketcher.Constraint("Equal", 0, 1),
    Sketcher.Constraint("Diameter", 0, Q("3.4 mm")),
    Sketcher.Constraint("DistanceY", 0, 3, 1, 3, Q("19 mm")),
    Sketcher.Constraint("DistanceX", 1, 3, 0, 3, Q("17.5 mm")),
    Sketcher.Constraint("DistanceX", -1, 1, 0, 3, Q("9.103824 mm")),
    Sketcher.Constraint("DistanceY", 0, 3, -1, 1, Q("25.473226 mm")),
])
pocket12 = body.newObject("PartDesign::Pocket", "Pocket011")
pocket12.Profile = sketch16
pocket12.Length = 5
pocket12.Reversed = True

sketch17 = body.newObject("Sketcher::SketchObject", "Sketch016")
sketch17.AttachmentSupport = (doc.getObject("XZ_Plane"), [""])
sketch17.MapMode = "FlatFace"
sketch17.AttachmentOffset = App.Placement(V(0, 0, -5.8), App.Rotation())
sketch17.addGeometry([
    Part.LineSegment(V(20.8, -32.3, 0), V(4, -32.3, 0)),
    Part.LineSegment(V(4, -32.3, 0), V(6, -30.3, 0)),
    Part.LineSegment(V(6, -30.3, 0), V(18.8, -30.3, 0)),
    Part.LineSegment(V(18.8, -30.3, 0), V(18.8, -24.3, 0)),
    Part.LineSegment(V(18.8, -24.3, 0), V(20.8, -24.3, 0)),
    Part.LineSegment(V(20.8, -24.3, 0), V(20.8, -32.3, 0)),
], False)
sketch17.addConstraint([
    Sketcher.Constraint("Coincident", 0, 2, 1, 1),
    Sketcher.Constraint("Coincident", 1, 2, 2, 1),
    Sketcher.Constraint("Coincident", 2, 2, 3, 1),
    Sketcher.Constraint("Coincident", 3, 2, 4, 1),
    Sketcher.Constraint("Coincident", 4, 2, 5, 1),
    Sketcher.Constraint("Coincident", 5, 2, 0, 1),
    Sketcher.Constraint("Horizontal", 0),
    Sketcher.Constraint("Horizontal", 2),
    Sketcher.Constraint("Vertical", 3),
    Sketcher.Constraint("Horizontal", 4),
    Sketcher.Constraint("Vertical", 5),
    Sketcher.Constraint("DistanceX", 4, 1, 4, 2, Q("2 mm")),
    Sketcher.Constraint("DistanceY", 3, 1, 3, 2, Q("6 mm")),
    Sketcher.Constraint("DistanceY", 5, 2, 5, 1, Q("8 mm")),
    Sketcher.Constraint("Angle", 1, Q("45 deg")),
    Sketcher.Constraint("DistanceX", 0, 2, 0, 1, Q("16.8 mm")),
    Sketcher.Constraint("DistanceX", -1, 1, 0, 2, Q("4 mm")),
    Sketcher.Constraint("DistanceY", 0, 2, -1, 1, Q("32.328396 mm")),
])
pad5 = body.newObject("PartDesign::Pad", "Pad004")
pad5.Profile = sketch17
pad5.Length = 6
pad5.Reversed = True

sketch18 = body.newObject("Sketcher::SketchObject", "Sketch017")
sketch18.AttachmentSupport = (doc.getObject("XY_Plane"), [""])
sketch18.MapMode = "FlatFace"
sketch18.AttachmentOffset = App.Placement(V(0, 0, -30.328396), App.Rotation())
sketch18.addGeometry(Part.Circle(V(18.8, 8.9, 0), V(0, 0, 1), 2), False)
sketch18.addConstraint([
    Sketcher.Constraint("Diameter", 0, Q("4 mm")),
    Sketcher.Constraint("DistanceX", -1, 1, 0, 3, Q("18.8 mm")),
    Sketcher.Constraint("DistanceY", -1, 1, 0, 3, Q("8.9 mm")),
])
pocket13 = body.newObject("PartDesign::Pocket", "Pocket012")
pocket13.Profile = sketch18
pocket13.Length = 5
doc.recompute()

linearpattern6 = body.newObject("PartDesign::LinearPattern", "LinearPattern005")
linearpattern6.Originals = [pocket13]
linearpattern6.Direction = (doc.getObject("X_Axis"), [""])
linearpattern6.Mode = "offset"
linearpattern6.Offset = 6.4
linearpattern6.Occurrences = 3
linearpattern6.Reversed = True
body.Tip = linearpattern6

sketch19 = body.newObject("Sketcher::SketchObject", "Sketch018")
sketch19.AttachmentSupport = (doc.getObject("XY_Plane"), [""])
sketch19.MapMode = "FlatFace"
sketch19.AttachmentOffset = App.Placement(V(0, 0, -30.328396), App.Rotation())
sketch19.addGeometry([
    Part.LineSegment(V(18.8, 4.9, 0), V(18.8, 5.8, 0)),
    Part.LineSegment(V(18.8, 5.8, 0), V(6, 5.8, 0)),
    Part.LineSegment(V(6, 5.8, 0), V(6, 4.9, 0)),
    Part.LineSegment(V(6, 4.9, 0), V(18.8, 4.9, 0)),
], False)
sketch19.addConstraint([
    Sketcher.Constraint("Coincident", 0, 2, 1, 1),
    Sketcher.Constraint("Coincident", 1, 2, 2, 1),
    Sketcher.Constraint("Coincident", 2, 2, 3, 1),
    Sketcher.Constraint("Coincident", 3, 2, 0, 1),
    Sketcher.Constraint("Vertical", 0),
    Sketcher.Constraint("Horizontal", 1),
    Sketcher.Constraint("Vertical", 2),
    Sketcher.Constraint("Horizontal", 3),
    Sketcher.Constraint("DistanceX", 1, 2, 1, 1, Q("12.8 mm")),
    Sketcher.Constraint("DistanceY", 0, 1, 0, 2, Q("0.9 mm")),
    Sketcher.Constraint("DistanceX", -1, 1, 1, 2, Q("6 mm")),
    Sketcher.Constraint("DistanceY", -1, 1, 0, 2, Q("5.8 mm")),
])
pad6 = body.newObject("PartDesign::Pad", "Pad005")
pad6.Profile = sketch19
pad6.Length = 2.5

sketch20 = body.newObject("Sketcher::SketchObject", "Sketch019")
sketch20.AttachmentSupport = (doc.getObject("XZ_Plane"), [""])
sketch20.MapMode = "FlatFace"
sketch20.addGeometry([
    Part.ArcOfCircle(Part.Circle(V(-7.9, -13.8, 0), V(0, 0, 1), 13), math.radians(143), math.radians(204)),
    Part.ArcOfCircle(Part.Circle(V(-17.5, -6.6, 0), V(0, 0, 1), 1), math.radians(-37), math.radians(143)),
    Part.ArcOfCircle(Part.Circle(V(-7.9, -13.8, 0), V(0, 0, 1), 11), math.radians(143), math.radians(204)),
    Part.ArcOfCircle(Part.Circle(V(-18.8, -18.7, 0), V(0, 0, 1), 1), math.radians(-156), math.radians(24)),
    Part.ArcOfCircle(Part.Circle(V(-7.9, -13.8, 0), V(0, 0, 1), 8.7), math.radians(137), math.radians(208)),
    Part.ArcOfCircle(Part.Circle(V(-13.5, -8.5, 0), V(0, 0, 1), 1), math.radians(-43), math.radians(137)),
    Part.ArcOfCircle(Part.Circle(V(-7.9, -13.8, 0), V(0, 0, 1), 6.7), math.radians(137), math.radians(208)),
    Part.ArcOfCircle(Part.Circle(V(-14.7, -17.4, 0), V(0, 0, 1), 1), math.radians(-152), math.radians(28)),
], False)
sketch20.addConstraint([
    Sketcher.Constraint("Tangent", 0, 1, 1, 2),
    Sketcher.Constraint("Tangent", 1, 1, 2, 1),
    Sketcher.Constraint("Tangent", 2, 2, 3, 2),
    Sketcher.Constraint("Tangent", 3, 1, 0, 2),
    Sketcher.Constraint("Tangent", 4, 1, 5, 2),
    Sketcher.Constraint("Tangent", 5, 1, 6, 1),
    Sketcher.Constraint("Tangent", 6, 2, 7, 2),
    Sketcher.Constraint("Tangent", 7, 1, 4, 2),
    Sketcher.Constraint("Coincident", 2, 3, 0, 3),
    Sketcher.Constraint("Coincident", 4, 3, 0, 3),
    Sketcher.Constraint("Coincident", 6, 3, 0, 3),
    Sketcher.Constraint("Radius", 5, Q("1 mm")),
    Sketcher.Constraint("Radius", 0, Q("13.017082 mm")),
    Sketcher.Constraint("Radius", 1, Q("1.002936 mm")),
    Sketcher.Constraint("Radius", 4, Q("8.719335 mm")),
    Sketcher.Constraint("DistanceX", 0, 1, 1, 3, Q("0.806202 mm")),
    Sketcher.Constraint("DistanceY", 3, 1, 1, 1, Q("11.847599 mm")),
    Sketcher.Constraint("DistanceY", 5, 1, 0, 1, Q("3.1196 mm")),
    Sketcher.Constraint("DistanceX", 1, 3, -1, 1, Q("17.512288 mm")),
    Sketcher.Constraint("DistanceY", 3, 3, -1, 1, Q("18.65138 mm")),
    Sketcher.Constraint("DistanceY", 7, 3, 4, 3, Q("3.600368 mm")),
])
pad7 = body.newObject("PartDesign::Pad", "Pad006")
pad7.Profile = sketch20
pad7.Length = 10
pad7.Reversed = True

sketch21 = body.newObject("Sketcher::SketchObject", "Sketch020")
sketch21.AttachmentSupport = (doc.getObject("YZ_Plane"), [""])
sketch21.MapMode = "FlatFace"
sketch21.AttachmentOffset = App.Placement(V(0, 0, -6), App.Rotation())
sketch21.addGeometry(Part.Circle(V(5.2, -12.8, 0), V(0, 0, 1), 2.1), False)
sketch21.addConstraint([
    Sketcher.Constraint("Diameter", 0, Q("4.190734 mm")),
    Sketcher.Constraint("DistanceY", 0, 3, -1, 1, Q("12.764299 mm")),
    Sketcher.Constraint("DistanceX", -1, 1, 0, 3, Q("5.219973 mm")),
])
pocket14 = body.newObject("PartDesign::Pocket", "Pocket013")
pocket14.Profile = sketch21
pocket14.Length = 100

sketch22 = body.newObject("Sketcher::SketchObject", "Sketch021")
sketch22.AttachmentSupport = (doc.getObject("XZ_Plane"), [""])
sketch22.MapMode = "FlatFace"
sketch22.addGeometry(Part.Circle(V(-8.4, -6.5, 0), V(0, 0, 1), 3.5), False)
sketch22.addConstraint([
    Sketcher.Constraint("Diameter", 0, Q("7 mm")),
    Sketcher.Constraint("DistanceX", 0, 3, -1, 1, Q("8.396176 mm")),
    Sketcher.Constraint("DistanceY", 0, 3, -1, 1, Q("6.473226 mm")),
])
pocket15 = body.newObject("PartDesign::Pocket", "Pocket014")
pocket15.Profile = sketch22
pocket15.Length = 25

sketch23 = body.newObject("Sketcher::SketchObject", "Sketch022")
sketch23.AttachmentSupport = (doc.getObject("XY_Plane"), [""])
sketch23.MapMode = "FlatFace"
sketch23.AttachmentOffset = App.Placement(V(0, 0, -32.328396), App.Rotation())
sketch23.addGeometry(Part.Circle(V(0, 5.4, 0), V(0, 0, 1), 2), False)
sketch23.addConstraint([
    Sketcher.Constraint("PointOnObject", 0, 3, -2),
    Sketcher.Constraint("Diameter", 0, Q("4 mm")),
    Sketcher.Constraint("DistanceY", -1, 1, 0, 3, Q("5.445766 mm")),
])
pocket16 = body.newObject("PartDesign::Pocket", "Pocket015")
pocket16.Profile = sketch23
pocket16.Length = 10
pocket16.Reversed = True

sketch24 = body.newObject("Sketcher::SketchObject", "Sketch023")
sketch24.AttachmentSupport = (doc.getObject("XZ_Plane"), [""])
sketch24.MapMode = "FlatFace"
sketch24.AttachmentOffset = App.Placement(V(0, 0, -14.434637), App.Rotation())
sketch24.addGeometry([
    Part.LineSegment(V(-3.6, -32.1, 0), V(-3.6, -28.5, 0)),
    Part.LineSegment(V(-3.6, -28.5, 0), V(3.6, -28.5, 0)),
    Part.LineSegment(V(3.6, -28.5, 0), V(3.6, -32.1, 0)),
    Part.LineSegment(V(3.6, -32.1, 0), V(-3.6, -32.1, 0)),
    Part.LineSegment(V(-3.6, 26.7, 0), V(-3.6, 29.7, 0)),
    Part.LineSegment(V(-3.6, 29.7, 0), V(3.6, 29.7, 0)),
    Part.LineSegment(V(3.6, 29.7, 0), V(3.6, 26.7, 0)),
    Part.LineSegment(V(3.6, 26.7, 0), V(-3.6, 26.7, 0)),
], False)
sketch24.addConstraint([
    Sketcher.Constraint("Coincident", 0, 2, 1, 1),
    Sketcher.Constraint("Coincident", 1, 2, 2, 1),
    Sketcher.Constraint("Coincident", 2, 2, 3, 1),
    Sketcher.Constraint("Coincident", 3, 2, 0, 1),
    Sketcher.Constraint("Coincident", 4, 2, 5, 1),
    Sketcher.Constraint("Coincident", 5, 2, 6, 1),
    Sketcher.Constraint("Coincident", 6, 2, 7, 1),
    Sketcher.Constraint("Coincident", 7, 2, 4, 1),
    Sketcher.Constraint("Vertical", 0),
    Sketcher.Constraint("Horizontal", 1),
    Sketcher.Constraint("Vertical", 2),
    Sketcher.Constraint("Horizontal", 3),
    Sketcher.Constraint("Vertical", 4),
    Sketcher.Constraint("Horizontal", 5),
    Sketcher.Constraint("Vertical", 6),
    Sketcher.Constraint("Horizontal", 7),
    Sketcher.Constraint("Vertical", 3, 2, 4, 2),
    Sketcher.Constraint("Vertical", 2, 2, 5, 2),
    Sketcher.Constraint("DistanceX", 1, 1, 1, 2, Q("7.25 mm")),
    Sketcher.Constraint("DistanceY", 4, 1, 4, 2, Q("3.011791 mm")),
    Sketcher.Constraint("DistanceY", 0, 1, 0, 2, Q("3.689443 mm")),
    Sketcher.Constraint("DistanceX", 0, 2, -1, 1, Q("3.615021 mm")),
    Sketcher.Constraint("DistanceY", 2, 2, -1, 1, Q("32.140288 mm")),
    Sketcher.Constraint("DistanceY", -1, 1, 6, 2, Q("26.694381 mm")),
])
pad8 = body.newObject("PartDesign::Pad", "Pad007")
pad8.Profile = sketch24
pad8.Length = 7
pad8.Reversed = True
body2 = doc.addObject("PartDesign::Body", "Body001")
doc.recompute()

body.Placement = App.Placement(V(0, -14.5, 0), App.Rotation(V(0, 0, 1), 0))
boolean = body2.newObject("PartDesign::Boolean", "Boolean")
boolean.Type = "Fuse"
boolean.addObjects([body])

doc.recompute()
